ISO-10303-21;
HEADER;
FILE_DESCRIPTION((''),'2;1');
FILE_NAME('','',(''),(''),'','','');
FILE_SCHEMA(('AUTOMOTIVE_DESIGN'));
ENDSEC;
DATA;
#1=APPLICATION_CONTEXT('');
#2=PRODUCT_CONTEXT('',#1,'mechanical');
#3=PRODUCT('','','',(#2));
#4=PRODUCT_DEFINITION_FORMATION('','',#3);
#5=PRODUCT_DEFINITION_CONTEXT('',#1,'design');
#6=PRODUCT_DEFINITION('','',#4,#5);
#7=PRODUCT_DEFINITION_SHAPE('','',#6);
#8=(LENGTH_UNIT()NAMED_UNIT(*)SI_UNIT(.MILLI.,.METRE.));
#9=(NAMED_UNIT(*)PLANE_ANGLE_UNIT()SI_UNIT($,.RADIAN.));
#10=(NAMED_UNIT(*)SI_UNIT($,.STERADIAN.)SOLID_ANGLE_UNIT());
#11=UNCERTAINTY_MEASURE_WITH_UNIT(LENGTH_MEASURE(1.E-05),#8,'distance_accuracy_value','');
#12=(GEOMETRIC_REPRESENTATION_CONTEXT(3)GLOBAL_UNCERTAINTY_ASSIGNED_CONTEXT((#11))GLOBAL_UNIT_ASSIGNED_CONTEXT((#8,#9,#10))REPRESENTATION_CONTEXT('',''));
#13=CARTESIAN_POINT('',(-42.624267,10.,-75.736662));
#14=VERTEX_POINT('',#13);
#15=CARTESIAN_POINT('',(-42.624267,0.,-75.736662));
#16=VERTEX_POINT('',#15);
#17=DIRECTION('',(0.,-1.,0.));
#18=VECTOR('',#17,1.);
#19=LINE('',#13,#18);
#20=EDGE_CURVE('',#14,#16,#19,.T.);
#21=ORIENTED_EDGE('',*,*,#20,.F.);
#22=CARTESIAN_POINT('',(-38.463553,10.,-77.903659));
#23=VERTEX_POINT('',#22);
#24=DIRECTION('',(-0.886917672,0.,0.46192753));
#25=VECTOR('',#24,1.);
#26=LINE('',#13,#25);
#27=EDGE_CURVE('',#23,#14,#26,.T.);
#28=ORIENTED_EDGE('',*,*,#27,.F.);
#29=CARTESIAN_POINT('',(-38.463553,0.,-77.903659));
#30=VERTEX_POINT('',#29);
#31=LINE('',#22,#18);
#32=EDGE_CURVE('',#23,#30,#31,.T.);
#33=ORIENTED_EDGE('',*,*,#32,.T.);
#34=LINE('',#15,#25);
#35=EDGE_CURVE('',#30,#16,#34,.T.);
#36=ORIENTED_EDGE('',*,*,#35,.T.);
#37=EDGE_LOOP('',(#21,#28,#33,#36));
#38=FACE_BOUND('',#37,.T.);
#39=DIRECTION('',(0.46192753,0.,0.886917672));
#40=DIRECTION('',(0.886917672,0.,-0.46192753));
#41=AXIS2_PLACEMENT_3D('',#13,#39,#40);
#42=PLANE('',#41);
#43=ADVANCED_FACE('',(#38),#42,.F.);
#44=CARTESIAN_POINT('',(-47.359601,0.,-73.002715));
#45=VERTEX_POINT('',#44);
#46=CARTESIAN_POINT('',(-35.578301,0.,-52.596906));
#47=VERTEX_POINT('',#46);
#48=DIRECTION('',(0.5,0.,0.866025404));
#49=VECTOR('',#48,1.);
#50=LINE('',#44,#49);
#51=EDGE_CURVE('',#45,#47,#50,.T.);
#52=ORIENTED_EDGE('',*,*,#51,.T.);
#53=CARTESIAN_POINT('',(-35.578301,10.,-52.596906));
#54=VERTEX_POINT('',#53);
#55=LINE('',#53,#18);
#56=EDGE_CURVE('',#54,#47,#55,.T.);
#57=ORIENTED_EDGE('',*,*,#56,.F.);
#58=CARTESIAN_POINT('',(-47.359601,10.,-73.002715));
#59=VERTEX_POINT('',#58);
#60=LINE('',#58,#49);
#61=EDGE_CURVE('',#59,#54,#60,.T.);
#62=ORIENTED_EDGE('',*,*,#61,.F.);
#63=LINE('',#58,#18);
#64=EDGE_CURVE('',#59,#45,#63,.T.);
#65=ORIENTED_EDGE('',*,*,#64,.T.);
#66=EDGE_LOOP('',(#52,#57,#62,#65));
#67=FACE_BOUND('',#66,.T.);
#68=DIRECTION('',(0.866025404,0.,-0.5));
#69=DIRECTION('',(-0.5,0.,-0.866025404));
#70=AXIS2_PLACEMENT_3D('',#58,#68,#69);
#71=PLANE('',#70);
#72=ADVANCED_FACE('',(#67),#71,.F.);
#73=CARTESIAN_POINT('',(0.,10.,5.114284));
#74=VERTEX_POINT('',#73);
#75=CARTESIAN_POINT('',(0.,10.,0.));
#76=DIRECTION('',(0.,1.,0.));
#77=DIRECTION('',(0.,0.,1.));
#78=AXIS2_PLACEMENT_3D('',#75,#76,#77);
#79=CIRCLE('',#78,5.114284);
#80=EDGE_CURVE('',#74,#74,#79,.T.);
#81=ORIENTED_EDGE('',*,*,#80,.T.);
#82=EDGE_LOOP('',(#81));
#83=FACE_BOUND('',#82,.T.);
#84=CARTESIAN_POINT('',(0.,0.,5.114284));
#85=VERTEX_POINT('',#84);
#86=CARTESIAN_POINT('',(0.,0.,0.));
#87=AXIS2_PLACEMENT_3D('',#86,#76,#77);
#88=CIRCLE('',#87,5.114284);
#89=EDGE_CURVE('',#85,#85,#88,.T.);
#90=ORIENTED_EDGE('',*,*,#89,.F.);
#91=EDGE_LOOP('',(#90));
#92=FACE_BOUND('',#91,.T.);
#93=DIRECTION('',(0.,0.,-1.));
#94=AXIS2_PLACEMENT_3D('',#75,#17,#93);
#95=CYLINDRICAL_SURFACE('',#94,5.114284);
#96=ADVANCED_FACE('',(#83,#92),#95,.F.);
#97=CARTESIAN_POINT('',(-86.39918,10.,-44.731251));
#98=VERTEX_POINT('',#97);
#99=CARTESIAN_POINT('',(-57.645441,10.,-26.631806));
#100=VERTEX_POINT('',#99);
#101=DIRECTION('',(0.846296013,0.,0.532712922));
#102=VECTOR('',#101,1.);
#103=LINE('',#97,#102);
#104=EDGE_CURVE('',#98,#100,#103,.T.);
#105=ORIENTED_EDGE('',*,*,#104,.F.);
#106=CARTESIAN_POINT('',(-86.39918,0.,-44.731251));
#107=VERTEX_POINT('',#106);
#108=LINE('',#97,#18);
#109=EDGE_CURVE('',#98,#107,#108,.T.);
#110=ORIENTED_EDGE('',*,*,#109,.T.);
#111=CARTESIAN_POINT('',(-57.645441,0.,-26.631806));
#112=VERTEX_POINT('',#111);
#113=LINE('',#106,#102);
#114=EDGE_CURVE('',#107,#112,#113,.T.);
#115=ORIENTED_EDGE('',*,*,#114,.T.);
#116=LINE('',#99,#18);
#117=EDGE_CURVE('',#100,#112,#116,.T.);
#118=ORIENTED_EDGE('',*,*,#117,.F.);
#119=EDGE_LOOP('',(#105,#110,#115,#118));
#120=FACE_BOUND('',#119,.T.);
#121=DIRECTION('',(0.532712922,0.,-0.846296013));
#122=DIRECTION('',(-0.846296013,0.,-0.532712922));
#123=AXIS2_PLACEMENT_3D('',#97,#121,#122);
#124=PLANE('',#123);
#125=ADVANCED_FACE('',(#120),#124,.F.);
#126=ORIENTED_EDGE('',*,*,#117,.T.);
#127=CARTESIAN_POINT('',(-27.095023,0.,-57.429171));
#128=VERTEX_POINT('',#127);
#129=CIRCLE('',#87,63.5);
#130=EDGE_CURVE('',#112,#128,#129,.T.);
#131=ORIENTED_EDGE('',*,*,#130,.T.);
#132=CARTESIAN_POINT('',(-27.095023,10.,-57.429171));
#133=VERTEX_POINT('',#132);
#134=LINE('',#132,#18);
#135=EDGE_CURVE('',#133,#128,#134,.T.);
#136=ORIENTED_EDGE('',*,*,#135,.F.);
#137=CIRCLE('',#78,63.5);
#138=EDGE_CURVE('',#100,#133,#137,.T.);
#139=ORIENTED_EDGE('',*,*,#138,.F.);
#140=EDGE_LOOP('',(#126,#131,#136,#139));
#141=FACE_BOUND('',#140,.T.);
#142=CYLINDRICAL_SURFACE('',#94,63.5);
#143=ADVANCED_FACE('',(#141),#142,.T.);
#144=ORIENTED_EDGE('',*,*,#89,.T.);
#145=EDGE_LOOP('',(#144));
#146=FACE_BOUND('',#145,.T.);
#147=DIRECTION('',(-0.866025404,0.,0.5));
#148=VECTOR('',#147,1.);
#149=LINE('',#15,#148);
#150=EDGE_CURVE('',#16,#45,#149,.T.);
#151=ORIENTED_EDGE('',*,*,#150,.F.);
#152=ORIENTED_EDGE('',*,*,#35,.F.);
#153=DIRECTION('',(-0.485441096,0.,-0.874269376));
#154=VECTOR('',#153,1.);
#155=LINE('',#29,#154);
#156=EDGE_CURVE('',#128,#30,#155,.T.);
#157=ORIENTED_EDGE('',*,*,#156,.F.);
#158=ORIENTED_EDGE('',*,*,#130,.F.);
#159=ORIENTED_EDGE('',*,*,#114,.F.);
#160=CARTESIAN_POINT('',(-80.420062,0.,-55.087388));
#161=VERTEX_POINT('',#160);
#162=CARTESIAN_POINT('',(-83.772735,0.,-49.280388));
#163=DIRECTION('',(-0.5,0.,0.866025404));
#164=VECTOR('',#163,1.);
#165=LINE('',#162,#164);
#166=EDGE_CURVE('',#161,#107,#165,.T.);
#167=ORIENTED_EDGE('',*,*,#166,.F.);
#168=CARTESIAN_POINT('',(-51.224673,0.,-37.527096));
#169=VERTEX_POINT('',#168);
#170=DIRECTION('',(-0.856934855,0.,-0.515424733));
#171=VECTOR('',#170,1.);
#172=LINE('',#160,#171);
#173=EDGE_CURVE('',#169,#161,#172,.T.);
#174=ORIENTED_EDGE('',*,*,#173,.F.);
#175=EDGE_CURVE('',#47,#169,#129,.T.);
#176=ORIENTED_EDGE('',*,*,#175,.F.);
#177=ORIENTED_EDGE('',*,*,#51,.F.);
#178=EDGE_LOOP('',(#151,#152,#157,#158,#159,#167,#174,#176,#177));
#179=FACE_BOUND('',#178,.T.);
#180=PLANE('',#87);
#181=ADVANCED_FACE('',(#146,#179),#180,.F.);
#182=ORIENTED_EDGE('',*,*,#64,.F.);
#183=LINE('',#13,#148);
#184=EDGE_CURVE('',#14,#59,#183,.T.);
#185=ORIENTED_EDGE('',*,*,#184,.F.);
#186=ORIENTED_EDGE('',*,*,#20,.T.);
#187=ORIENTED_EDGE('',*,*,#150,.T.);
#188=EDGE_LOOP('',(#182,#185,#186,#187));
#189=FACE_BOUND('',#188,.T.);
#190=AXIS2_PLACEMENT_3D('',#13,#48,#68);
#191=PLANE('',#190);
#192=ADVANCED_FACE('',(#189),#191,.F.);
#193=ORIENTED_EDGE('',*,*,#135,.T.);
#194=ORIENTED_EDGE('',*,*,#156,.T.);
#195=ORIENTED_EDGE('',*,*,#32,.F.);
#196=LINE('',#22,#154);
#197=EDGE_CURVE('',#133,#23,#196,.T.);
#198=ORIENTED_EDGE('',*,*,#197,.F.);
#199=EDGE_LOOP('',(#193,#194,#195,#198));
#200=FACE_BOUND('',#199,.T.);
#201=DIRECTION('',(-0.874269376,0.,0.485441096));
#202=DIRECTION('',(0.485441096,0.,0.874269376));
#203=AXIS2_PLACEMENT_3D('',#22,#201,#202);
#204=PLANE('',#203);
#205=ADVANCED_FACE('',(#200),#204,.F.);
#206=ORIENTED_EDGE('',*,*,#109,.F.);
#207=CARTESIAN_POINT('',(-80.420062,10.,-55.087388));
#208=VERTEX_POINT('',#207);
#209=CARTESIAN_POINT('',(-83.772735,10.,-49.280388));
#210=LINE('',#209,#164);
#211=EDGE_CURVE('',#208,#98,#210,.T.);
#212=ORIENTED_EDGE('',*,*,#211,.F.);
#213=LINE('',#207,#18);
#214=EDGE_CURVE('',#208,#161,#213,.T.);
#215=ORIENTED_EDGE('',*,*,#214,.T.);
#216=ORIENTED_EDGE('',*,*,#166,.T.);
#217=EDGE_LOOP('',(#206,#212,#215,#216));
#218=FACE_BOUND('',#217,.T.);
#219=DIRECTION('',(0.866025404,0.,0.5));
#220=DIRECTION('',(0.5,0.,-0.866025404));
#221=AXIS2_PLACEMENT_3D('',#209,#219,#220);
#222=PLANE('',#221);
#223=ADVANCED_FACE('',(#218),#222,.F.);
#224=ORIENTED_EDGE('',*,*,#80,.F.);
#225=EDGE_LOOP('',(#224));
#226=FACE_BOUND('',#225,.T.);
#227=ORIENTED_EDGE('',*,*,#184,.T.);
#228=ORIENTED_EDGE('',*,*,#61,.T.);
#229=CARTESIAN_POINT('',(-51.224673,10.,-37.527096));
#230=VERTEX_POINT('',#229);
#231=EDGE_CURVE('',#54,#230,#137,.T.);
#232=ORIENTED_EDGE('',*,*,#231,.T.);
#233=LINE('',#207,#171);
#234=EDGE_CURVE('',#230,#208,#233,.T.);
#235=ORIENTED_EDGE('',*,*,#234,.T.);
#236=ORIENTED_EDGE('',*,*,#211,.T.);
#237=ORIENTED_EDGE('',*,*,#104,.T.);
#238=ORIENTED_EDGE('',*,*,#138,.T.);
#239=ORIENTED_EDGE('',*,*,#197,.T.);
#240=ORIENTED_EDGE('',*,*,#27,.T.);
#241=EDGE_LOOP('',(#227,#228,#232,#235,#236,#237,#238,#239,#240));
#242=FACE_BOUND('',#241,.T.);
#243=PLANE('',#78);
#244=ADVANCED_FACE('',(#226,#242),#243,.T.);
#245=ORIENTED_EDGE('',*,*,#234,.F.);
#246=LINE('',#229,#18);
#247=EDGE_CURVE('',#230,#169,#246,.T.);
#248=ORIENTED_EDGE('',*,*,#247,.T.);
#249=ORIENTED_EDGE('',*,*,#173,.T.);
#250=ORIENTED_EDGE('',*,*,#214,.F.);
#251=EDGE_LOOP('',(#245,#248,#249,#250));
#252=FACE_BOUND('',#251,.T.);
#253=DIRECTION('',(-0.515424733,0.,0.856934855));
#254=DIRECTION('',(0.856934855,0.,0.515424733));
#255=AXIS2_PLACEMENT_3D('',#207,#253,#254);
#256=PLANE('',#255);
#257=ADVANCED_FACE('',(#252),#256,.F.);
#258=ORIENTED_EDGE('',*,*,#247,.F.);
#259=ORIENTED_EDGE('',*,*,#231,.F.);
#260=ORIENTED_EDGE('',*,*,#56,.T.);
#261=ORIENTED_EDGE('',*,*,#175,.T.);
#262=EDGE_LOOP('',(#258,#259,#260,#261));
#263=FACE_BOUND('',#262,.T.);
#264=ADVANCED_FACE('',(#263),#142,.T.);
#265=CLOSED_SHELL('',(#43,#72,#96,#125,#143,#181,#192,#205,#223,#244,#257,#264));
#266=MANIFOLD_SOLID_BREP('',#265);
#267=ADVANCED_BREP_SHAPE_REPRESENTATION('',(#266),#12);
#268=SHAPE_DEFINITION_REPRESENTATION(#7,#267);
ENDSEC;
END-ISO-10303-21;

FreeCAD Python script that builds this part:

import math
import FreeCAD as App
import Part
import Sketcher

V = App.Vector
Q = App.Units.Quantity

doc = App.newDocument("Part")
body = doc.addObject("PartDesign::Body", "Body")

# Sketch on XZ plane
sketch1 = body.newObject("Sketcher::SketchObject", "Sketch")
sketch1.AttachmentSupport = (doc.getObject("XZ_Plane"), [""])
sketch1.MapMode = "FlatFace"
sketch1.addGeometry([
    Part.LineSegment(V(-83.8, -49.3, 0), V(-86.4, -44.7, 0)),  # 0
    Part.LineSegment(V(-86.4, -44.7, 0), V(-57.6, -26.6, 0)),  # 1
    Part.ArcOfCircle(Part.Circle(V(0, 0, 0), V(0, 0, 1), 63.5), math.radians(-115), math.radians(205)),  # 2
    Part.LineSegment(V(-27.1, -57.4, 0), V(-38.5, -77.9, 0)),  # 3
    Part.LineSegment(V(-38.5, -77.9, 0), V(-42.6, -75.7, 0)),  # 4
    Part.LineSegment(V(-42.6, -75.7, 0), V(-47.4, -73, 0)),  # 5
    Part.LineSegment(V(-47.4, -73, 0), V(-35.6, -52.6, 0)),  # 6
    Part.ArcOfCircle(Part.Circle(V(0, 0, 0), V(0, 0, 1), 63.5), math.radians(-143.77), math.radians(-124.08)),  # 7
    Part.LineSegment(V(-51.2, -37.5, 0), V(-80.4, -55.1, 0)),  # 8
    Part.LineSegment(V(-80.4, -55.1, 0), V(-83.8, -49.3, 0)),  # 9
    Part.Circle(V(0, 0, 0), V(0, 0, 1), 5.1),  # 10
], False)
sketch1.addConstraint([
    Sketcher.Constraint("Coincident", 0, 2, 1, 1),
    Sketcher.Constraint("Coincident", 1, 2, 2, 2),
    Sketcher.Constraint("Coincident", 2, 1, 3, 1),
    Sketcher.Constraint("Coincident", 3, 2, 4, 1),
    Sketcher.Constraint("Coincident", 4, 2, 5, 1),
    Sketcher.Constraint("Coincident", 5, 2, 6, 1),
    Sketcher.Constraint("Coincident", 6, 2, 7, 2),
    Sketcher.Constraint("Coincident", 7, 1, 8, 1),
    Sketcher.Constraint("Coincident", 8, 2, 9, 1),
    Sketcher.Constraint("Coincident", 9, 2, 0, 1),
    Sketcher.Constraint("Coincident", 2, 3, -1, 1),
    Sketcher.Constraint("Coincident", 7, 3, -1, 1),
    Sketcher.Constraint("Coincident", 10, 3, -1, 1),
    Sketcher.Constraint("Equal", 2, 7),
    Sketcher.Constraint("Perpendicular", 5, 6),
    Sketcher.Constraint("Parallel", 0, 9),
    Sketcher.Constraint("Radius", 2, 63.5),
    Sketcher.Constraint("Angle", 0, Q("120 deg")),
    Sketcher.Constraint("Angle", 5, Q("150 deg")),
    Sketcher.Constraint("Diameter", 10, 10.228569),
    Sketcher.Constraint("DistanceY", 8, 2, 9, 2, 5.807),
    Sketcher.Constraint("Distance", 6, 23.5626),
    Sketcher.Constraint("DistanceX", 5, 2, -1, 1, 47.359601),
    Sketcher.Constraint("DistanceY", 6, 2, 1, 2, 25.965099),
    Sketcher.Constraint("Distance", 0, 5.25289),
    Sketcher.Constraint("Distance", 3, 23.41897),
    Sketcher.Constraint("DistanceX", 0, 2, -1, 1, 86.39918),
    Sketcher.Constraint("DistanceY", 0, 2, -1, 1, 44.731251),
    Sketcher.Constraint("DistanceY", 2, 1, -1, 1, 57.429171),
    Sketcher.Constraint("DistanceY", 3, 2, -1, 1, 77.903659),
    Sketcher.Constraint("DistanceY", 4, 2, -1, 1, 75.736662),
    Sketcher.Constraint("DistanceX", 1, 2, 7, 1, 6.420769),
])
pad1 = body.newObject("PartDesign::Pad", "Pad")
pad1.Profile = sketch1
pad1.Length = 10
pad1.Reversed = True

doc.recompute()
